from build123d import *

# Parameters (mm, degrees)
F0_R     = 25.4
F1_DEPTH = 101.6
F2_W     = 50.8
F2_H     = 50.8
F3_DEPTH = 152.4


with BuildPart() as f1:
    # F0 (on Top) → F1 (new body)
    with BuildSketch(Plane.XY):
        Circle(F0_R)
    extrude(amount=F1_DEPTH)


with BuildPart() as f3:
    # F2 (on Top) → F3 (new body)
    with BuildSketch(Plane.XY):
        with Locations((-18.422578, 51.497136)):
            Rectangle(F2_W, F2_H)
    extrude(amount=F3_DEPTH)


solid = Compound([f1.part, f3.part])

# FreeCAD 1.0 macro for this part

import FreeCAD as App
import Part
import Sketcher
Q = App.Units.Quantity


def add_polygon(sketch, points):
    """Adds a closed chain of lines whose ends are joined by coincident constraints."""
    first, n = sketch.GeometryCount, len(points)
    for a, b in zip(points, points[1:] + points[:1]):
        sketch.addGeometry(Part.LineSegment(App.Vector(*a, 0), App.Vector(*b, 0)), False)
    for i in range(n):
        sketch.addConstraint(Sketcher.Constraint("Coincident", first + i, 2, first + (i + 1) % n, 1))

doc = App.newDocument("Part")
body = doc.addObject("PartDesign::Body", "Body")

sketch1 = body.newObject("Sketcher::SketchObject", "Sketch")
sketch1.AttachmentSupport = (doc.getObject("XY_Plane"), [""])
sketch1.MapMode = "FlatFace"
sketch1.addGeometry(Part.Circle(App.Vector(0, 0, 0), App.Vector(0, 0, 1), 25), False)
sketch1.addConstraint(Sketcher.Constraint("Coincident", 0, 3, -1, 1))
sketch1.addConstraint(Sketcher.Constraint("Diameter", 0, Q("2 in")))
pad1 = body.newObject("PartDesign::Pad", "Pad")
pad1.Profile = sketch1
pad1.Length = Q("4 in")
body2 = doc.addObject("PartDesign::Body", "Body001")

sketch2 = body2.newObject("Sketcher::SketchObject", "Sketch001")
sketch2.AttachmentSupport = (doc.getObject("XY_Plane001"), [""])
sketch2.MapMode = "FlatFace"
add_polygon(sketch2, [(-44, 77), (-44, 26), (7, 26), (7, 77)])
sketch2.addConstraint(Sketcher.Constraint("Vertical", 0))
sketch2.addConstraint(Sketcher.Constraint("Horizontal", 1))
sketch2.addConstraint(Sketcher.Constraint("Vertical", 2))
sketch2.addConstraint(Sketcher.Constraint("Horizontal", 3))
sketch2.addConstraint(Sketcher.Constraint("Equal", 3, 0))
sketch2.addConstraint(Sketcher.Constraint("DistanceX", 1, 1, 1, 2, Q("2 in")))
sketch2.addConstraint(Sketcher.Constraint("DistanceX", -1, 1, 1, 2, 6.977422))
sketch2.addConstraint(Sketcher.Constraint("DistanceY", -1, 1, 0, 2, 26.097136))
pad2 = body2.newObject("PartDesign::Pad", "Pad001")
pad2.Profile = sketch2
pad2.Length = Q("6 in")

doc.recompute()
